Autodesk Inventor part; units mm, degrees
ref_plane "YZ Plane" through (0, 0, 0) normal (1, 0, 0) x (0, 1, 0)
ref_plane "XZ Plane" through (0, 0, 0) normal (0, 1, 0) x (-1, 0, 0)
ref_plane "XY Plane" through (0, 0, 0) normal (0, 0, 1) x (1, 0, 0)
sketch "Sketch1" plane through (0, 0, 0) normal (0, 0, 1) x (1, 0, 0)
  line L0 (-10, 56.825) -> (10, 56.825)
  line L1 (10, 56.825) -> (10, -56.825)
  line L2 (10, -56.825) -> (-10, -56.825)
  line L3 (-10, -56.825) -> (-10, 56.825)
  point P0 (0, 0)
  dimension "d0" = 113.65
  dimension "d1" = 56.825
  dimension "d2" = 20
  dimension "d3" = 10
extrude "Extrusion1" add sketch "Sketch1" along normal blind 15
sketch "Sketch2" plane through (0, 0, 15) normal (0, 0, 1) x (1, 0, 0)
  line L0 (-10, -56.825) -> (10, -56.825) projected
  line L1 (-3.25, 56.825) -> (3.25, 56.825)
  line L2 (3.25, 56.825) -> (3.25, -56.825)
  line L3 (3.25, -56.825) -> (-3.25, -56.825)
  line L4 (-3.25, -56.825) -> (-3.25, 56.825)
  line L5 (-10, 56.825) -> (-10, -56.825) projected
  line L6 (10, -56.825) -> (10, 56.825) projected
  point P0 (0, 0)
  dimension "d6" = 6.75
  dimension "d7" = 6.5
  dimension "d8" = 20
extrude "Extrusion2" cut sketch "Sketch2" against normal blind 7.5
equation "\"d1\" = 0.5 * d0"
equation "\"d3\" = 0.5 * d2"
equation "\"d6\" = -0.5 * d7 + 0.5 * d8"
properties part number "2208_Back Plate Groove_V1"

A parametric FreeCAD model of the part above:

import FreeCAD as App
import Part
import Sketcher

V = App.Vector


def add_polygon(sketch, points):
    """Adds a closed chain of lines whose ends are joined by coincident constraints."""
    first, n = sketch.GeometryCount, len(points)
    for a, b in zip(points, points[1:] + points[:1]):
        sketch.addGeometry(Part.LineSegment(App.Vector(*a, 0), App.Vector(*b, 0)), False)
    for i in range(n):
        sketch.addConstraint(Sketcher.Constraint("Coincident", first + i, 2, first + (i + 1) % n, 1))

doc = App.newDocument("Part")
body = doc.addObject("PartDesign::Body", "Body")

sketch1 = doc.addObject("Sketcher::SketchObject", "Sketch")
body.addObject(sketch1)
sketch1.AttachmentSupport = (doc.XY_Plane, [""])
sketch1.MapMode = "FlatFace"
add_polygon(sketch1, [(10, 56.825), (-10, 56.825), (-10, -56.825), (10, -56.825)])
sketch1.addConstraint([
    Sketcher.Constraint("Horizontal", 0),
    Sketcher.Constraint("Vertical", 1),
    Sketcher.Constraint("Horizontal", 2),
    Sketcher.Constraint("Vertical", 3),
    Sketcher.Constraint("Symmetric", 0, 2, 2, 2, -1, 1),
    Sketcher.Constraint("DistanceX", 0, 2, 0, 1, 20.0),
    Sketcher.Constraint("DistanceY", 1, 2, 1, 1, 113.65),
])
pad1 = doc.addObject("PartDesign::Pad", "Pad")
body.addObject(pad1)
pad1.Profile = sketch1
pad1.Length = 15

sketch2 = doc.addObject("Sketcher::SketchObject", "Sketch001")
body.addObject(sketch2)
sketch2.AttachmentSupport = (doc.XY_Plane, [""])
sketch2.MapMode = "FlatFace"
sketch2.AttachmentOffset = App.Placement(V(0, 0, 15), App.Rotation())
add_polygon(sketch2, [(-3.25, 56.825), (-3.25, -56.825), (3.25, -56.825), (3.25, 56.825)])
sketch2.addConstraint([
    Sketcher.Constraint("Vertical", 0),
    Sketcher.Constraint("Horizontal", 1),
    Sketcher.Constraint("Vertical", 2),
    Sketcher.Constraint("Horizontal", 3),
    Sketcher.Constraint("Symmetric", 0, 2, 2, 2, -1, 1),
    Sketcher.Constraint("DistanceX", 1, 1, 1, 2, 6.5),
    Sketcher.Constraint("DistanceY", 0, 2, 0, 1, 113.65),
])
pocket1 = doc.addObject("PartDesign::Pocket", "Pocket")
body.addObject(pocket1)
pocket1.Profile = sketch2
pocket1.Length = 7.5

doc.recompute()
